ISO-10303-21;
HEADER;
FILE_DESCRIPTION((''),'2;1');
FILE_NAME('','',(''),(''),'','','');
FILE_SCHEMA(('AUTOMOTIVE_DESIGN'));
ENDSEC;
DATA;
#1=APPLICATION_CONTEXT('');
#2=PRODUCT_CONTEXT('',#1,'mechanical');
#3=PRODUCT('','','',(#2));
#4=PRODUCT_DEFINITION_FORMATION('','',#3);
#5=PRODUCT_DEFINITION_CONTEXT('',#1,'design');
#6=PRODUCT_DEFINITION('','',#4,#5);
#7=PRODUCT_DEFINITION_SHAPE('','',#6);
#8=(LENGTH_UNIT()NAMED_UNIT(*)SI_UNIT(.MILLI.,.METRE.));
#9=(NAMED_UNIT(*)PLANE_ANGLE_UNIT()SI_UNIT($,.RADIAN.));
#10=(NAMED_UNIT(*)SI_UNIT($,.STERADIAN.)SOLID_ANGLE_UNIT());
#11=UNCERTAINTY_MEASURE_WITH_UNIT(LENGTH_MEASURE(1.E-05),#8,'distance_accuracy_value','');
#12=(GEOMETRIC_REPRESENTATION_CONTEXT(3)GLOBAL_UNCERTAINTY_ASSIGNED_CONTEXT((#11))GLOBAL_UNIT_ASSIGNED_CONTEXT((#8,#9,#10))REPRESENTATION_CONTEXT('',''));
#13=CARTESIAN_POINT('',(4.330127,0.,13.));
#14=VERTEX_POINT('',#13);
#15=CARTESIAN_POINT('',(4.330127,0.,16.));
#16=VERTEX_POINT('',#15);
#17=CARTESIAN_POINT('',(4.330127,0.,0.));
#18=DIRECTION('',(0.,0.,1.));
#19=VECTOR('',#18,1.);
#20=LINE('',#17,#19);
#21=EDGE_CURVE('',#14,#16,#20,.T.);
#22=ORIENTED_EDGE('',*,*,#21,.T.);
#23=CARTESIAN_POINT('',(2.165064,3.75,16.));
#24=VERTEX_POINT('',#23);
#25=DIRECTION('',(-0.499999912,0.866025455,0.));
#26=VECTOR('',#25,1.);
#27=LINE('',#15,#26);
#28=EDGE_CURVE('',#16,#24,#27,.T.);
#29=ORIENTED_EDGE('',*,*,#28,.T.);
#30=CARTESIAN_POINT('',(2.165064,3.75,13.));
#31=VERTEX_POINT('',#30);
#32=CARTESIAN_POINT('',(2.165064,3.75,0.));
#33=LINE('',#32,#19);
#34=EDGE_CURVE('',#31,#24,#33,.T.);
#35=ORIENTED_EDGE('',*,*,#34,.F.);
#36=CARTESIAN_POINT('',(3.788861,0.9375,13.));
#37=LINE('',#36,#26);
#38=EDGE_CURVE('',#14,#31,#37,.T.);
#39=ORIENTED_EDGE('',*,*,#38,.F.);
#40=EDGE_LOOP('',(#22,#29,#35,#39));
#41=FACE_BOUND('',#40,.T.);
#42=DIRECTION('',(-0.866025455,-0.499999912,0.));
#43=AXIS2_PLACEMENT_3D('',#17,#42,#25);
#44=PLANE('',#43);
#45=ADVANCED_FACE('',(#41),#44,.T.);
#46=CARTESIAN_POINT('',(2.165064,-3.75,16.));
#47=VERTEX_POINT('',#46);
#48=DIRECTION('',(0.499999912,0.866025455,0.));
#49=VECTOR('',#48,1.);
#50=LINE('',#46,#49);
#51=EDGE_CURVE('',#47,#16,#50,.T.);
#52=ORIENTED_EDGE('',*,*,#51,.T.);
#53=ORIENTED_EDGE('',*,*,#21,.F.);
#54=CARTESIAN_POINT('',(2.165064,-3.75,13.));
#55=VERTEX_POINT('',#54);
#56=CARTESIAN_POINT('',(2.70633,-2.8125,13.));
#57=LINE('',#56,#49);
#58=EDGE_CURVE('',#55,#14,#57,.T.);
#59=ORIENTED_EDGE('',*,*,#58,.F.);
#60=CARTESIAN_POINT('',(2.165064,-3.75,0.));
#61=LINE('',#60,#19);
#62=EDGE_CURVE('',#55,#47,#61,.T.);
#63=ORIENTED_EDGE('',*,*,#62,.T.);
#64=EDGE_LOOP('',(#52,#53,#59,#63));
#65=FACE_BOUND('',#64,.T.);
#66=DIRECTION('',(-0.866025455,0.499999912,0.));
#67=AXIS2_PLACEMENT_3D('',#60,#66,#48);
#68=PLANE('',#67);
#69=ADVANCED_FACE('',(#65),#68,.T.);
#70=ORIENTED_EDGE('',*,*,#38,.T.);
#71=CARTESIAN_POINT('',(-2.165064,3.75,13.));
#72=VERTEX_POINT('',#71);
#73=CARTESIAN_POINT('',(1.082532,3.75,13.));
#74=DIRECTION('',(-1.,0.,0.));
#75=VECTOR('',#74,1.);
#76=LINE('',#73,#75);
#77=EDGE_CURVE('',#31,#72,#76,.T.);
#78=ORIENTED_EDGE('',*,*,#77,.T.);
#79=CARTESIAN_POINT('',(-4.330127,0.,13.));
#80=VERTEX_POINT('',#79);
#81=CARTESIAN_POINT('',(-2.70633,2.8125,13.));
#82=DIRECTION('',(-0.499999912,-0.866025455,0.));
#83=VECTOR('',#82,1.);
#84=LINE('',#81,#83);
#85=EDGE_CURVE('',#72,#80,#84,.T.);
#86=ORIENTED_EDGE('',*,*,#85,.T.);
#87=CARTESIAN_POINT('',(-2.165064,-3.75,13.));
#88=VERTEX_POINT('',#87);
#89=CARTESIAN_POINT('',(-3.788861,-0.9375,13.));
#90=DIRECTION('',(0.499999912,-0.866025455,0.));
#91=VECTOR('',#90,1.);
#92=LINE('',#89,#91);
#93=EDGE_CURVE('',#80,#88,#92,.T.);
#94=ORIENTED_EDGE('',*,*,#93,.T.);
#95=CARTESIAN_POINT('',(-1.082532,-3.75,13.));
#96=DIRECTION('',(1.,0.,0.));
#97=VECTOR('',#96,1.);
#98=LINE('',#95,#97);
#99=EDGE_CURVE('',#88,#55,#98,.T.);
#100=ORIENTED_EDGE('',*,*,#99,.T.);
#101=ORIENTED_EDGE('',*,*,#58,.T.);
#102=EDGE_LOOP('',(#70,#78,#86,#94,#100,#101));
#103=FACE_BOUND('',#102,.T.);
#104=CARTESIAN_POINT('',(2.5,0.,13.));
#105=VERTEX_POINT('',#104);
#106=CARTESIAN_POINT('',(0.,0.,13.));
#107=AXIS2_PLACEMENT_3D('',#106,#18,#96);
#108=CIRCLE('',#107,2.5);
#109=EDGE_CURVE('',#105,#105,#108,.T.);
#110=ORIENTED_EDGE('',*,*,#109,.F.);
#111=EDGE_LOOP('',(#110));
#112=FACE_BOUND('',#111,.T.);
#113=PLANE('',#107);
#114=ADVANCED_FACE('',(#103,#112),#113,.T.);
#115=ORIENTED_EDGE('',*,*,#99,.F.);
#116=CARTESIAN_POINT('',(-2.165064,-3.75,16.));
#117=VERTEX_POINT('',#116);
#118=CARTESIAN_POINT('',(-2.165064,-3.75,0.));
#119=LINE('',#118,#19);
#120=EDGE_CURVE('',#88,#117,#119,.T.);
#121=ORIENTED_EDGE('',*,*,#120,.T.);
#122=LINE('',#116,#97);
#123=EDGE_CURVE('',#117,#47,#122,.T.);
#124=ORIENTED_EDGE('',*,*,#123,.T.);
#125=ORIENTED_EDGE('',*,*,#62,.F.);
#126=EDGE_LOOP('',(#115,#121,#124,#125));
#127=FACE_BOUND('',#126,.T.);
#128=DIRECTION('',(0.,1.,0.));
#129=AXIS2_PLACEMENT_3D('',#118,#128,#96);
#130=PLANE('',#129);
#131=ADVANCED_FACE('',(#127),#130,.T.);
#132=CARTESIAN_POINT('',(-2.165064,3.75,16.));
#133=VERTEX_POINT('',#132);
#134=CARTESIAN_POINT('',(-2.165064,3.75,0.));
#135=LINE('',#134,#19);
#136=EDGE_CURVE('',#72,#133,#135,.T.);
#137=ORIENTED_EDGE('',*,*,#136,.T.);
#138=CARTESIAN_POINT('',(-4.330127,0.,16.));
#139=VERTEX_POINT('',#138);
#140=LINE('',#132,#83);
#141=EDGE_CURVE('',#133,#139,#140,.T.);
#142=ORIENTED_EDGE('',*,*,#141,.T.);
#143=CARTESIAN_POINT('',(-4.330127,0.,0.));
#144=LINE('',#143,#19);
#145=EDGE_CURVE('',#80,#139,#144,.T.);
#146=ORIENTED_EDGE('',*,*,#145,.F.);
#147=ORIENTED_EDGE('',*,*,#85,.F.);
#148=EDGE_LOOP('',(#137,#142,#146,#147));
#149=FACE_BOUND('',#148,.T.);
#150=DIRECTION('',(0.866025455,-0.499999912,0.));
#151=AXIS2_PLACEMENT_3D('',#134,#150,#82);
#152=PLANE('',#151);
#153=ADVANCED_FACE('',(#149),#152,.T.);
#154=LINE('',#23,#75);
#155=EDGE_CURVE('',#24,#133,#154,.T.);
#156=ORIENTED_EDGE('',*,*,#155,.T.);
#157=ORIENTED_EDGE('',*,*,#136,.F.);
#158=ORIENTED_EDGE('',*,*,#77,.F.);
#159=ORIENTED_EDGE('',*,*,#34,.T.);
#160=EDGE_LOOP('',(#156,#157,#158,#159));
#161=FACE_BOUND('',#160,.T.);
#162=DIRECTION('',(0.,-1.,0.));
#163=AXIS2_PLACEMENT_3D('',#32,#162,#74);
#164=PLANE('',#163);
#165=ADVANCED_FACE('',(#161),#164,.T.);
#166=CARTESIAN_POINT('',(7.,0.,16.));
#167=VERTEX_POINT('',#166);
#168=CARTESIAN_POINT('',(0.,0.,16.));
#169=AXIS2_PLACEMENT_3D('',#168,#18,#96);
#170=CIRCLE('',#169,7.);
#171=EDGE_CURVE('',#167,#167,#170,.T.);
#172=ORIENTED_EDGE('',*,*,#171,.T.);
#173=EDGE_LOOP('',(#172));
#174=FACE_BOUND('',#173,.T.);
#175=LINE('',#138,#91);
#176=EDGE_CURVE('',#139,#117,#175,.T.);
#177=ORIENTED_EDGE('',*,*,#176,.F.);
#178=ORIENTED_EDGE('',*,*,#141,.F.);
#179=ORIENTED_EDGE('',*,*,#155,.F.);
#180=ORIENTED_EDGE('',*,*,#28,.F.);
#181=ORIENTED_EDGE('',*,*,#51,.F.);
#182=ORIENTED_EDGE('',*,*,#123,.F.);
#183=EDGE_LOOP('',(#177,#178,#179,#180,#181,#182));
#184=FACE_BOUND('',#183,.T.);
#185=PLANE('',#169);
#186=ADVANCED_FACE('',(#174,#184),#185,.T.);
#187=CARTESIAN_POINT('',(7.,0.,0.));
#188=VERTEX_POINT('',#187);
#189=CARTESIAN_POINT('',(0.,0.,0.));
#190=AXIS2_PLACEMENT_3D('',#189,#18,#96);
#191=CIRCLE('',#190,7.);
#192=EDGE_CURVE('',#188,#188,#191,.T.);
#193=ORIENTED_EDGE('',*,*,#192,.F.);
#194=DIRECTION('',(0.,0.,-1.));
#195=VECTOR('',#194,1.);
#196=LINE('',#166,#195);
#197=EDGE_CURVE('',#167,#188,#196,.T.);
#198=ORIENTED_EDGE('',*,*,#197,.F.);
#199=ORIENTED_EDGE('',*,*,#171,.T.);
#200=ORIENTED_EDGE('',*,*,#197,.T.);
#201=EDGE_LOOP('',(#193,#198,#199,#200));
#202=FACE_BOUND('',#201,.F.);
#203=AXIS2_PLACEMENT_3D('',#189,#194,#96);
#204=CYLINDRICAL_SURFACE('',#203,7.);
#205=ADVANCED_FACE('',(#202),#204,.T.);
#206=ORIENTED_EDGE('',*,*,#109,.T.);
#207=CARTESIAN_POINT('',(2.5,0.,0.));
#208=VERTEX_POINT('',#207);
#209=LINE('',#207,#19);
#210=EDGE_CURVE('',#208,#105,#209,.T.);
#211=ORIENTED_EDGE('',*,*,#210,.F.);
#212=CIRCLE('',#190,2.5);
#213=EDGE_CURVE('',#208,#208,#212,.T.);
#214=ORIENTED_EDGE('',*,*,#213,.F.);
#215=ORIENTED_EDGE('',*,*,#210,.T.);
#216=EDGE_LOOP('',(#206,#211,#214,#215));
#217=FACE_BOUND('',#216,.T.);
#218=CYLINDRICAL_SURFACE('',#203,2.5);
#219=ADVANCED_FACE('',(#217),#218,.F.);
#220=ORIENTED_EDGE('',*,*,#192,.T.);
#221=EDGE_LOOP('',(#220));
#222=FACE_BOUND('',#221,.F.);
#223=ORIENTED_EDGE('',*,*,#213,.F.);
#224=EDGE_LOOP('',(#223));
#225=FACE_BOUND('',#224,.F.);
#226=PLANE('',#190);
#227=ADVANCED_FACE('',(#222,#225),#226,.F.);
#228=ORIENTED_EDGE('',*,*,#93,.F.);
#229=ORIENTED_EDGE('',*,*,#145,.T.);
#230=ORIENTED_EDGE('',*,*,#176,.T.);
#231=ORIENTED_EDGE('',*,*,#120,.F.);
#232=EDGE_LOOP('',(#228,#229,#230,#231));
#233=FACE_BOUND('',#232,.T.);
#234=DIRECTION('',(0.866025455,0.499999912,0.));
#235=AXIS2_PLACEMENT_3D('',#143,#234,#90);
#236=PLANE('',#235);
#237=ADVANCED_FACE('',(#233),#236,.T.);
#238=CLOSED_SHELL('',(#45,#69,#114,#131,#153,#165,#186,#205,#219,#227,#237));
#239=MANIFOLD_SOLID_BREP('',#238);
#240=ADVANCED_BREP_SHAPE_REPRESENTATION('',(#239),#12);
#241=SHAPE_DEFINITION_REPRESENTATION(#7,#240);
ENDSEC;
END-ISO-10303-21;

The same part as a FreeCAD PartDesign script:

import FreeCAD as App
import Part
import Sketcher
Q = App.Units.Quantity

doc = App.newDocument("Part")
body = doc.addObject("PartDesign::Body", "Body")

sketch1 = body.newObject("Sketcher::SketchObject", "Sketch")
sketch1.AttachmentSupport = (doc.getObject("XY_Plane"), [""])
sketch1.MapMode = "FlatFace"
sketch1.addGeometry([
    Part.Circle(App.Vector(0, 0, 0), App.Vector(0, 0, 1), 7),
    Part.LineSegment(App.Vector(2.165064, 3.75, 0), App.Vector(4.330127, 0, 0)),
    Part.LineSegment(App.Vector(4.330127, 0, 0), App.Vector(2.165064, -3.75, 0)),
    Part.LineSegment(App.Vector(2.165064, -3.75, 0), App.Vector(-2.165064, -3.75, 0)),
    Part.LineSegment(App.Vector(-2.165064, -3.75, 0), App.Vector(-4.330127, 0, 0)),
    Part.LineSegment(App.Vector(-4.330127, 0, 0), App.Vector(-2.165064, 3.75, 0)),
    Part.LineSegment(App.Vector(-2.165064, 3.75, 0), App.Vector(2.165064, 3.75, 0)),
], False)
sketch1.addConstraint([
    Sketcher.Constraint("Coincident", 1, 2, 2, 1),
    Sketcher.Constraint("Coincident", 2, 2, 3, 1),
    Sketcher.Constraint("Coincident", 3, 2, 4, 1),
    Sketcher.Constraint("Coincident", 4, 2, 5, 1),
    Sketcher.Constraint("Coincident", 5, 2, 6, 1),
    Sketcher.Constraint("Coincident", 6, 2, 1, 1),
    Sketcher.Constraint("Horizontal", 3),
    Sketcher.Constraint("Horizontal", 6),
    Sketcher.Constraint("Coincident", 0, 3, -1, 1),
    Sketcher.Constraint("Symmetric", 1, 2, 4, 2, -1, 1),
    Sketcher.Constraint("Symmetric", 2, 2, 5, 2, -1, 1),
    Sketcher.Constraint("PointOnObject", 1, 2, -1),
    Sketcher.Constraint("Parallel", 1, 4),
    Sketcher.Constraint("Vertical", 3, 2, 5, 2),
    Sketcher.Constraint("Diameter", 0, 14.0),
    Sketcher.Constraint("Angle", 1, Q("-60.000006 deg")),
    Sketcher.Constraint("DistanceY", 3, 2, 5, 2, 7.5),
    Sketcher.Constraint("DistanceX", 3, 2, 3, 1, 4.330128),
])
pad1 = body.newObject("PartDesign::Pad", "Pad")
pad1.Profile = sketch1
pad1.Length = 16

sketch2 = body.newObject("Sketcher::SketchObject", "Sketch001")
sketch2.AttachmentSupport = (doc.getObject("XY_Plane"), [""])
sketch2.MapMode = "FlatFace"
sketch2.addGeometry([
    Part.Circle(App.Vector(0, 0, 0), App.Vector(0, 0, 1), 7),
    Part.Circle(App.Vector(0, 0, 0), App.Vector(0, 0, 1), 2.5),
], False)
sketch2.addConstraint([
    Sketcher.Constraint("Coincident", 0, 3, -1, 1),
    Sketcher.Constraint("Coincident", 1, 3, -1, 1),
    Sketcher.Constraint("Diameter", 0, 14.0),
    Sketcher.Constraint("Diameter", 1, 5.0),
])
pad2 = body.newObject("PartDesign::Pad", "Pad001")
pad2.Profile = sketch2
pad2.Length = 13

doc.recompute()
